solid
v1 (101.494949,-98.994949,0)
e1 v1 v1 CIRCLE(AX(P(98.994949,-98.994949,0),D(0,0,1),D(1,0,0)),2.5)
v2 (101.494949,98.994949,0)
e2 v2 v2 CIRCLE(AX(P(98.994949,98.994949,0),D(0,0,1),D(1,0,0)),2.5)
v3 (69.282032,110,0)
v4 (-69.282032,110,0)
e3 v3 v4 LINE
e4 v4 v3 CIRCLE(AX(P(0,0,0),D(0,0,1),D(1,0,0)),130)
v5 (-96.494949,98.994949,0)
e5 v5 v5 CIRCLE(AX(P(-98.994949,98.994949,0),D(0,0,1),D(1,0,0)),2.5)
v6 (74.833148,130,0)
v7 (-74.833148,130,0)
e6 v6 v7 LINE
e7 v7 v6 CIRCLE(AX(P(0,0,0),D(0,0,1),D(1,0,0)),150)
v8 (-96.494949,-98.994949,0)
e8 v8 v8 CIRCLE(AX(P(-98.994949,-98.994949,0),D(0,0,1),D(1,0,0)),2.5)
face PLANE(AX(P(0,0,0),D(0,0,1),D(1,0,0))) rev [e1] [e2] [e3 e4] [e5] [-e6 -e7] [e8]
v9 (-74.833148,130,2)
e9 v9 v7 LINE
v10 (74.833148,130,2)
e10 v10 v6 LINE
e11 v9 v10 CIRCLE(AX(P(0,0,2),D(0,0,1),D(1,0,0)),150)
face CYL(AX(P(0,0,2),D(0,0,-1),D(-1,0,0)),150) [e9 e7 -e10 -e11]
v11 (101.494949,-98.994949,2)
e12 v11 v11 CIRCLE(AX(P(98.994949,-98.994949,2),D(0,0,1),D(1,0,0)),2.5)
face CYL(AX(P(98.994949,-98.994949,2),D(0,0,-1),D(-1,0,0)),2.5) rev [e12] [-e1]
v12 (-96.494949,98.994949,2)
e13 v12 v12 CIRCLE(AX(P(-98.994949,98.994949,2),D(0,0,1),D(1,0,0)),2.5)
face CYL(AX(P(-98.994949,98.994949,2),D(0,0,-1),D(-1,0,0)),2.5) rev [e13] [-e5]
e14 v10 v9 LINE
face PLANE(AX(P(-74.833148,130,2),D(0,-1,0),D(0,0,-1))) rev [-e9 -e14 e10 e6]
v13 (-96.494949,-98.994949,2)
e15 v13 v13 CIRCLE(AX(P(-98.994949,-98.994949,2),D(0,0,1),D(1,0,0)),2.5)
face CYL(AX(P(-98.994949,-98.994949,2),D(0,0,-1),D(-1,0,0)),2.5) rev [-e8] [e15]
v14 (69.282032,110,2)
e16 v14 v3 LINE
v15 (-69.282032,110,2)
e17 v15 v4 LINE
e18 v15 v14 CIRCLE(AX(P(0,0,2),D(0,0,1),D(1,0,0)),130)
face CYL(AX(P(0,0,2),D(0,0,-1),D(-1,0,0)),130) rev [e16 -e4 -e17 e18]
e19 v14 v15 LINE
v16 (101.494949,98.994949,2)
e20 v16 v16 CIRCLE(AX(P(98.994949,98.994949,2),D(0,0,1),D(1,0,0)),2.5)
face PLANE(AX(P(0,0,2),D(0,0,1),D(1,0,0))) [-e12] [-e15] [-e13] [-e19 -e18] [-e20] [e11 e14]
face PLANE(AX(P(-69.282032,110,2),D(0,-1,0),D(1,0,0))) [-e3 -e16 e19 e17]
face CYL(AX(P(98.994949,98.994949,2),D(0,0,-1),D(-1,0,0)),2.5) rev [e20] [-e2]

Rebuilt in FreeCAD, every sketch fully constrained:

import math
import FreeCAD as App
import Part
import Sketcher
from FreeCAD import Vector
Q = App.Units.Quantity

doc = App.newDocument("Part")
body = doc.addObject("PartDesign::Body", "Body")

# Sketch on XY plane
sketch1 = doc.addObject("Sketcher::SketchObject", "Sketch")
body.addObject(sketch1)
sketch1.AttachmentSupport = (doc.XY_Plane, [""])
sketch1.MapMode = "FlatFace"
sketch1.addGeometry(Part.LineSegment(Vector(74.833148, 130, 0), Vector(-74.833148, 130, 0)), False)
sketch1.addGeometry(Part.ArcOfCircle(Part.Circle(Vector(0, 0, 0), Vector(0, 0, 1), 150), math.radians(119.926435), math.radians(420.073565)), False)
sketch1.addGeometry(Part.Circle(Vector(98.994949, -98.994949, 0), Vector(0, 0, 1), 2.5), False)
sketch1.addGeometry(Part.Circle(Vector(-98.994949, -98.994949, 0), Vector(0, 0, 1), 2.5), False)
sketch1.addGeometry(Part.LineSegment(Vector(-69.282032, 110, 0), Vector(69.282032, 110, 0)), False)
sketch1.addGeometry(Part.ArcOfCircle(Part.Circle(Vector(0, 0, 0), Vector(0, 0, 1), 130), math.radians(122.204228), math.radians(417.795772)), False)
sketch1.addGeometry(Part.Circle(Vector(98.994949, 98.994949, 0), Vector(0, 0, 1), 2.5), False)
sketch1.addGeometry(Part.Circle(Vector(-98.994949, 98.994949, 0), Vector(0, 0, 1), 2.5), False)
sketch1.addConstraint(Sketcher.Constraint("Coincident", 0, 1, 1, 2))
sketch1.addConstraint(Sketcher.Constraint("Coincident", 1, 1, 0, 2))
sketch1.addConstraint(Sketcher.Constraint("Coincident", 4, 1, 5, 1))
sketch1.addConstraint(Sketcher.Constraint("Coincident", 5, 2, 4, 2))
sketch1.addConstraint(Sketcher.Constraint("Horizontal", 0))
sketch1.addConstraint(Sketcher.Constraint("Horizontal", 4))
sketch1.addConstraint(Sketcher.Constraint("Coincident", 1, 3, -1, 1))
sketch1.addConstraint(Sketcher.Constraint("Coincident", 5, 3, -1, 1))
sketch1.addConstraint(Sketcher.Constraint("Equal", 2, 3))
sketch1.addConstraint(Sketcher.Constraint("Equal", 3, 6))
sketch1.addConstraint(Sketcher.Constraint("Equal", 6, 7))
sketch1.addConstraint(Sketcher.Constraint("Symmetric", 3, 3, 6, 3, -1, 1))
sketch1.addConstraint(Sketcher.Constraint("Symmetric", 2, 3, 7, 3, -1, 1))
sketch1.addConstraint(Sketcher.Constraint("Symmetric", 2, 3, 3, 3, -2))
sketch1.addConstraint(Sketcher.Constraint("Diameter", 2, Q("5 mm")))
sketch1.addConstraint(Sketcher.Constraint("Radius", 1, Q("150 mm")))
sketch1.addConstraint(Sketcher.Constraint("Radius", 5, Q("130 mm")))
sketch1.addConstraint(Sketcher.Constraint("DistanceY", -1, 1, 0, 1, Q("130 mm")))
sketch1.addConstraint(Sketcher.Constraint("DistanceY", -1, 1, 4, 1, Q("110 mm")))
sketch1.addConstraint(Sketcher.Constraint("DistanceX", 3, 3, 2, 3, Q("197.989899 mm")))
sketch1.addConstraint(Sketcher.Constraint("DistanceY", 2, 3, 6, 3, Q("197.989899 mm")))
pad1 = doc.addObject("PartDesign::Pad", "Pad")
body.addObject(pad1)
pad1.Profile = sketch1
pad1.Length = 2

doc.recompute()
